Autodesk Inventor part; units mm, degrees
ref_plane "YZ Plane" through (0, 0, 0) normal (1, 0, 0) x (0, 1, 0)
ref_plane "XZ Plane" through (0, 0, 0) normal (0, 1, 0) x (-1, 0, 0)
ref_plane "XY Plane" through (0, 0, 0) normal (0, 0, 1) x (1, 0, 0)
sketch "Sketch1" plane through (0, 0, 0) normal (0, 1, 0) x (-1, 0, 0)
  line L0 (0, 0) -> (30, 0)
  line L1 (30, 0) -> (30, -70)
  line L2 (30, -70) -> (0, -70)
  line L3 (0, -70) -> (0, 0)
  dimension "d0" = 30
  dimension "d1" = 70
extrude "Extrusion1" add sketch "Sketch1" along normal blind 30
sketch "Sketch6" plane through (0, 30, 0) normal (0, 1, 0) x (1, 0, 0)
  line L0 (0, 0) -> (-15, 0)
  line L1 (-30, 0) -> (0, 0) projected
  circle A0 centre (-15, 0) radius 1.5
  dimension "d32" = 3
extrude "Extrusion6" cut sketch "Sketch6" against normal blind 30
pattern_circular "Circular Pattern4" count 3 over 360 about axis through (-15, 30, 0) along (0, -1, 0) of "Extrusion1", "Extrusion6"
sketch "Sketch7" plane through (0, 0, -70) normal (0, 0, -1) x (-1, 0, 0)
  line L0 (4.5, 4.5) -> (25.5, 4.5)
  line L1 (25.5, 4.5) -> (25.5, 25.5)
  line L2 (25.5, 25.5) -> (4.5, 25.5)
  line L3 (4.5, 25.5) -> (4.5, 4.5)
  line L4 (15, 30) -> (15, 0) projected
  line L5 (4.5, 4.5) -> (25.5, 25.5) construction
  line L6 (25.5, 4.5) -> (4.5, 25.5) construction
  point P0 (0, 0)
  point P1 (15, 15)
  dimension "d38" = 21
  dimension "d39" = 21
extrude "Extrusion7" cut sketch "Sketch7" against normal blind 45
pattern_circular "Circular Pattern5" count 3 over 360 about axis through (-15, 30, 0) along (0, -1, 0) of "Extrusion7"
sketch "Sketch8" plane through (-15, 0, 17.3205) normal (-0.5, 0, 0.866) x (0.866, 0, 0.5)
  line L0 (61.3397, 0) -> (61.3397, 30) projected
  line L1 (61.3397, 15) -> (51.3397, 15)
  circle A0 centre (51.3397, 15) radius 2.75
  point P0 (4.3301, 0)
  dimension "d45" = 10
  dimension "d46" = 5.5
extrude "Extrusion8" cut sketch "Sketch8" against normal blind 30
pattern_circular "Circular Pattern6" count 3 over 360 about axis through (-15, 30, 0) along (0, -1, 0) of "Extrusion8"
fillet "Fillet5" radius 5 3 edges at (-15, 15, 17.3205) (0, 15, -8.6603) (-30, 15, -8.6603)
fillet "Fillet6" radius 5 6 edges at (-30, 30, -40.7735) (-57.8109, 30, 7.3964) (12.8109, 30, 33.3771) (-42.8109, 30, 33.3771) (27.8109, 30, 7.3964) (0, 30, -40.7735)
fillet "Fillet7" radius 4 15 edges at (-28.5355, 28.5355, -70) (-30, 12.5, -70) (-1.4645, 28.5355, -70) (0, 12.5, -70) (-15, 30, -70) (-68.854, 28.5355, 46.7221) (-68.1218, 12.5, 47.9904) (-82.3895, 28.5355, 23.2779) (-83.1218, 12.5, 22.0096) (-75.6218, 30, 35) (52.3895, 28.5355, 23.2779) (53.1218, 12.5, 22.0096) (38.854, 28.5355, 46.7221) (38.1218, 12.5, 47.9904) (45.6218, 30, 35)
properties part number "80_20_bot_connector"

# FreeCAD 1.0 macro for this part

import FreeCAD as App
import Part
import Sketcher
from FreeCAD import Vector


def edges_at(feature, points):
    """Names of the edges that pass closest to the given points."""
    edges = feature.Shape.Edges
    near = lambda p: min(range(len(edges)), key=lambda i: edges[i].distToShape(Part.Vertex(*p))[0])
    return sorted({f"Edge{near(p) + 1}" for p in points})

doc = App.newDocument("Part")
params = doc.addObject("Spreadsheet::Sheet", "Params")
for row, (alias, value) in enumerate([
    ("sketch1_width", "30 mm"),
    ("sketch1_height", "70 mm"),
    ("pad1_length", "30 mm"),
    ("sketch2_diameter", "3 mm"),
    ("pocket1_length", "30 mm"),
    ("sketch3_width", "21 mm"),
    ("pocket2_length", "45 mm"),
    ("sketch4_diameter", "5.5 mm"),
    ("pocket3_length", "30 mm"),
    ("fillet_radius", "5 mm"),
    ("fillet2_radius", "5 mm"),
    ("fillet3_radius", "4 mm"),
], start=1):
    params.set(f"A{row}", alias)
    params.set(f"B{row}", "=" + value)
    params.setAlias(f"B{row}", alias)

body = doc.addObject("PartDesign::Body", "Body")

# Sketch on XZ plane
sketch1 = body.newObject("Sketcher::SketchObject", "Sketch")
sketch1.AttachmentSupport = (doc.getObject("XZ_Plane"), [""])
sketch1.MapMode = "FlatFace"
sketch1.addGeometry([
    Part.LineSegment(Vector(-30, 0, 0), Vector(0, 0, 0)),
    Part.LineSegment(Vector(0, 0, 0), Vector(0, -70, 0)),
    Part.LineSegment(Vector(0, -70, 0), Vector(-30, -70, 0)),
    Part.LineSegment(Vector(-30, -70, 0), Vector(-30, 0, 0)),
], False)
sketch1.addConstraint([
    Sketcher.Constraint("Coincident", 0, 2, 1, 1),
    Sketcher.Constraint("Coincident", 1, 2, 2, 1),
    Sketcher.Constraint("Coincident", 2, 2, 3, 1),
    Sketcher.Constraint("Coincident", 3, 2, 0, 1),
    Sketcher.Constraint("Horizontal", 0),
    Sketcher.Constraint("Vertical", 1),
    Sketcher.Constraint("Horizontal", 2),
    Sketcher.Constraint("Vertical", 3),
    Sketcher.Constraint("Coincident", 0, 2, -1, 1),
    Sketcher.Constraint("DistanceX", 0, 1, 0, 2, 30.0),
    Sketcher.Constraint("DistanceY", 1, 2, 1, 1, 70.0),
])
sketch1.setExpression("Constraints[9]", "Params.sketch1_width")
sketch1.setExpression("Constraints[10]", "Params.sketch1_height")
pad1 = body.newObject("PartDesign::Pad", "Pad")
pad1.Profile = sketch1
pad1.setExpression("Length", "Params.pad1_length")
pad1.Reversed = True

# Sketch on XZ plane
sketch2 = body.newObject("Sketcher::SketchObject", "Sketch001")
sketch2.AttachmentSupport = (doc.getObject("XZ_Plane"), [""])
sketch2.MapMode = "FlatFace"
sketch2.AttachmentOffset = App.Placement(Vector(0, 0, -30), App.Rotation())
sketch2.addGeometry(Part.Circle(Vector(-15, 0, 0), Vector(0, 0, 1), 1.5), False)
sketch2.addConstraint([
    Sketcher.Constraint("PointOnObject", 0, 3, -1),
    Sketcher.Constraint("Diameter", 0, 3.0),
    Sketcher.Constraint("DistanceX", 0, 3, -1, 1, 15.0),
])
sketch2.setExpression("Constraints[1]", "Params.sketch2_diameter")
pocket1 = body.newObject("PartDesign::Pocket", "Pocket")
pocket1.Profile = sketch2
pocket1.setExpression("Length", "Params.pocket1_length")
pocket1.Reversed = True
doc.recompute()

datumline = body.newObject("PartDesign::Line", "DatumLine")
datumline.Placement = App.Placement(Vector(-15, 0, 0), App.Rotation(Vector(0, 0, 1), Vector(0, 1, 0)))
polarpattern = body.newObject("PartDesign::PolarPattern", "PolarPattern")
polarpattern.Originals = [pad1, pocket1]
polarpattern.Axis = (datumline, [""])
polarpattern.Angle = 360
polarpattern.Occurrences = 3
body.Tip = polarpattern

# Sketch on XY plane
sketch3 = body.newObject("Sketcher::SketchObject", "Sketch002")
sketch3.AttachmentSupport = (doc.getObject("XY_Plane"), [""])
sketch3.MapMode = "FlatFace"
sketch3.AttachmentOffset = App.Placement(Vector(0, 0, -70), App.Rotation())
sketch3.addGeometry([
    Part.LineSegment(Vector(-4, 26, 0), Vector(-4, 4, 0)),
    Part.LineSegment(Vector(-4, 4, 0), Vector(-26, 4, 0)),
    Part.LineSegment(Vector(-26, 4, 0), Vector(-26, 26, 0)),
    Part.LineSegment(Vector(-26, 26, 0), Vector(-4, 26, 0)),
], False)
sketch3.addConstraint([
    Sketcher.Constraint("Coincident", 0, 2, 1, 1),
    Sketcher.Constraint("Coincident", 1, 2, 2, 1),
    Sketcher.Constraint("Coincident", 2, 2, 3, 1),
    Sketcher.Constraint("Coincident", 3, 2, 0, 1),
    Sketcher.Constraint("Vertical", 0),
    Sketcher.Constraint("Horizontal", 1),
    Sketcher.Constraint("Vertical", 2),
    Sketcher.Constraint("Horizontal", 3),
    Sketcher.Constraint("Equal", 3, 0),
    Sketcher.Constraint("DistanceX", 1, 2, 1, 1, 21.0),
    Sketcher.Constraint("DistanceX", 0, 2, -1, 1, 4.5),
    Sketcher.Constraint("DistanceY", -1, 1, 0, 2, 4.5),
])
sketch3.setExpression("Constraints[9]", "Params.sketch3_width")
pocket2 = body.newObject("PartDesign::Pocket", "Pocket001")
pocket2.Profile = sketch3
pocket2.setExpression("Length", "Params.pocket2_length")
pocket2.Reversed = True
doc.recompute()

datumline2 = body.newObject("PartDesign::Line", "DatumLine001")
datumline2.Placement = App.Placement(Vector(-15, 0, 0), App.Rotation(Vector(0, 0, 1), Vector(0, 1, 0)))
polarpattern2 = body.newObject("PartDesign::PolarPattern", "PolarPattern001")
polarpattern2.Originals = [pocket2]
polarpattern2.Axis = (datumline2, [""])
polarpattern2.Angle = 360
polarpattern2.Occurrences = 3
body.Tip = polarpattern2

# Sketch on an angled plane
sketch4 = body.newObject("Sketcher::SketchObject", "Sketch003")
sketch4.Placement = App.Placement(Vector(-15, 0, 17.3205), App.Rotation(Vector(0.866025404, 0, 0.5), Vector(0, 1, 0), Vector(-0.5, 0, 0.866025404), "ZXY"))
sketch4.addGeometry(Part.Circle(Vector(51.3, 15, 0), Vector(0, 0, 1), 2.8), False)
sketch4.addConstraint([
    Sketcher.Constraint("Diameter", 0, 5.5),
    Sketcher.Constraint("DistanceY", -1, 1, 0, 3, 15.0),
    Sketcher.Constraint("DistanceX", -1, 1, 0, 3, 51.3397),
])
sketch4.setExpression("Constraints[0]", "Params.sketch4_diameter")
pocket3 = body.newObject("PartDesign::Pocket", "Pocket002")
pocket3.Profile = sketch4
pocket3.setExpression("Length", "Params.pocket3_length")
doc.recompute()

datumline3 = body.newObject("PartDesign::Line", "DatumLine002")
datumline3.Placement = App.Placement(Vector(-15, 0, 0), App.Rotation(Vector(0, 0, 1), Vector(0, 1, 0)))
polarpattern3 = body.newObject("PartDesign::PolarPattern", "PolarPattern002")
polarpattern3.Originals = [pocket3]
polarpattern3.Axis = (datumline3, [""])
polarpattern3.Angle = 360
polarpattern3.Occurrences = 3
body.Tip = polarpattern3
doc.recompute()

fillet = body.newObject("PartDesign::Fillet", "Fillet")
fillet.Base = (polarpattern3, edges_at(polarpattern3, [(-15, 15, 17.32), (0, 15, -8.66), (-30, 15, -8.66)]))
fillet.setExpression("Radius", "Params.fillet_radius")
doc.recompute()

fillet2 = body.newObject("PartDesign::Fillet", "Fillet001")
fillet2.Base = (fillet, edges_at(fillet, [
    (-30, 30, -40.773),
    (-57.811, 30, 7.396),
    (12.811, 30, 33.377),
    (-42.811, 30, 33.377),
    (27.811, 30, 7.396),
    (0, 30, -40.773),
]))
fillet2.setExpression("Radius", "Params.fillet2_radius")
doc.recompute()

fillet3 = body.newObject("PartDesign::Fillet", "Fillet002")
fillet3.Base = (fillet2, edges_at(fillet2, [
    (-28.535, 28.535, -70),
    (-30, 12.5, -70),
    (-1.464, 28.535, -70),
    (0, 12.5, -70),
    (-15, 30, -70),
    (-68.854, 28.535, 46.722),
    (-68.122, 12.5, 47.99),
    (-82.389, 28.535, 23.278),
    (-83.122, 12.5, 22.01),
    (-75.622, 30, 35),
    (52.389, 28.535, 23.278),
    (53.122, 12.5, 22.01),
    (38.854, 28.535, 46.722),
    (38.122, 12.5, 47.99),
    (45.622, 30, 35),
]))
fillet3.setExpression("Radius", "Params.fillet3_radius")

doc.recompute()
